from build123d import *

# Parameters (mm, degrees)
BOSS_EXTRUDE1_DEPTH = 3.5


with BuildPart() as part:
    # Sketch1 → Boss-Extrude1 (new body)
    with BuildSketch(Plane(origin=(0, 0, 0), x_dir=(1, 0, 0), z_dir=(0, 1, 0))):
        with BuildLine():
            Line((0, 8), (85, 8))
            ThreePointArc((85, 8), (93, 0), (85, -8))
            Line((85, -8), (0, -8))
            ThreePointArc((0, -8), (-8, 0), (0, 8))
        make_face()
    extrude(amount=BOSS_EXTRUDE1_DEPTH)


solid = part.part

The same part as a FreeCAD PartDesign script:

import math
import FreeCAD as App
import Part
import Sketcher
from FreeCAD import Vector

doc = App.newDocument("Part")
params = doc.addObject("Spreadsheet::Sheet", "Params")
for row, (alias, value) in enumerate([
    ("sketch1_radius", "8 mm"),
    ("sketch1_width", "85 mm"),
    ("pad1_length", "3.5 mm"),
], start=1):
    params.set(f"A{row}", alias)
    params.set(f"B{row}", "=" + value)
    params.setAlias(f"B{row}", alias)

body = doc.addObject("PartDesign::Body", "Body")

# Sketch on XZ plane
sketch1 = body.newObject("Sketcher::SketchObject", "Sketch")
sketch1.AttachmentSupport = (doc.getObject("XZ_Plane"), [""])
sketch1.MapMode = "FlatFace"
sketch1.addGeometry(Part.LineSegment(Vector(85, -8, 0), Vector(0, -8, 0)), False)
sketch1.addGeometry(Part.ArcOfCircle(Part.Circle(Vector(0, 0, 0), Vector(0, 0, 1), 8), math.radians(90), math.radians(270)), False)
sketch1.addGeometry(Part.LineSegment(Vector(0, 8, 0), Vector(85, 8, 0)), False)
sketch1.addGeometry(Part.ArcOfCircle(Part.Circle(Vector(85, 0, 0), Vector(0, 0, 1), 8), math.radians(-90), math.radians(90)), False)
sketch1.addConstraint(Sketcher.Constraint("Tangent", 0, 2, 1, 2))
sketch1.addConstraint(Sketcher.Constraint("Tangent", 1, 1, 2, 1))
sketch1.addConstraint(Sketcher.Constraint("Tangent", 2, 2, 3, 2))
sketch1.addConstraint(Sketcher.Constraint("Tangent", 3, 1, 0, 1))
sketch1.addConstraint(Sketcher.Constraint("Horizontal", 0))
sketch1.addConstraint(Sketcher.Constraint("Horizontal", 2))
sketch1.addConstraint(Sketcher.Constraint("Coincident", 1, 3, -1, 1))
sketch1.addConstraint(Sketcher.Constraint("Radius", 1, 8.0))
sketch1.addConstraint(Sketcher.Constraint("DistanceX", 0, 2, 0, 1, 85.0))
sketch1.setExpression("Constraints[7]", "Params.sketch1_radius")
sketch1.setExpression("Constraints[8]", "Params.sketch1_width")
pad1 = body.newObject("PartDesign::Pad", "Pad")
pad1.Profile = sketch1
pad1.setExpression("Length", "Params.pad1_length")
pad1.Reversed = True

doc.recompute()
